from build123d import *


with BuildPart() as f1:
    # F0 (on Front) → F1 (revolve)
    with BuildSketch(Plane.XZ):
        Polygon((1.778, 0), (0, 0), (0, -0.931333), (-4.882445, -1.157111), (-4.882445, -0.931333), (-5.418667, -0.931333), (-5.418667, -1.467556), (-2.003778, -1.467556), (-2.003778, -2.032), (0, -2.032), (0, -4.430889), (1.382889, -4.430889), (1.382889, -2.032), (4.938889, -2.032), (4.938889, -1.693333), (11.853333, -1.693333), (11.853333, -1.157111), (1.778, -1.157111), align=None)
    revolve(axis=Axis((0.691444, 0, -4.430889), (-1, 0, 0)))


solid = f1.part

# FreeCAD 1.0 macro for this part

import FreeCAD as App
import Part
import Sketcher
from FreeCAD import Vector
Q = App.Units.Quantity

doc = App.newDocument("Part")
body = doc.addObject("PartDesign::Body", "Body")

# Sketch on XZ plane
sketch1 = body.newObject("Sketcher::SketchObject", "Sketch")
sketch1.AttachmentSupport = (doc.getObject("XZ_Plane"), [""])
sketch1.MapMode = "FlatFace"
sketch1.addGeometry(Part.LineSegment(Vector(1.78, 0, 0), Vector(0, 0, 0)), False)
sketch1.addGeometry(Part.LineSegment(Vector(0, 0, 0), Vector(0, -0.93, 0)), False)
sketch1.addGeometry(Part.LineSegment(Vector(0, -0.93, 0), Vector(-4.88, -1.16, 0)), False)
sketch1.addGeometry(Part.LineSegment(Vector(-4.88, -1.16, 0), Vector(-4.88, -0.93, 0)), False)
sketch1.addGeometry(Part.LineSegment(Vector(-4.88, -0.93, 0), Vector(-5.42, -0.93, 0)), False)
sketch1.addGeometry(Part.LineSegment(Vector(-5.42, -0.93, 0), Vector(-5.42, -1.47, 0)), False)
sketch1.addGeometry(Part.LineSegment(Vector(-5.42, -1.47, 0), Vector(-2, -1.47, 0)), False)
sketch1.addGeometry(Part.LineSegment(Vector(-2, -1.47, 0), Vector(-2, -2.03, 0)), False)
sketch1.addGeometry(Part.LineSegment(Vector(-2, -2.03, 0), Vector(0, -2.03, 0)), False)
sketch1.addGeometry(Part.LineSegment(Vector(0, -2.03, 0), Vector(0, -4.43, 0)), False)
sketch1.addGeometry(Part.LineSegment(Vector(0, -4.43, 0), Vector(1.38, -4.43, 0)), False)
sketch1.addGeometry(Part.LineSegment(Vector(1.38, -4.43, 0), Vector(1.38, -2.03, 0)), False)
sketch1.addGeometry(Part.LineSegment(Vector(1.38, -2.03, 0), Vector(4.94, -2.03, 0)), False)
sketch1.addGeometry(Part.LineSegment(Vector(4.94, -2.03, 0), Vector(4.94, -1.69, 0)), False)
sketch1.addGeometry(Part.LineSegment(Vector(4.94, -1.69, 0), Vector(11.85, -1.69, 0)), False)
sketch1.addGeometry(Part.LineSegment(Vector(11.85, -1.69, 0), Vector(11.85, -1.16, 0)), False)
sketch1.addGeometry(Part.LineSegment(Vector(11.85, -1.16, 0), Vector(1.78, -1.16, 0)), False)
sketch1.addGeometry(Part.LineSegment(Vector(1.78, -1.16, 0), Vector(1.78, 0, 0)), False)
sketch1.addGeometry(Part.LineSegment(Vector(11.85, -4.43, 0), Vector(-5.42, -4.43, 0)), True)  # axis
sketch1.addConstraint(Sketcher.Constraint("Coincident", 0, 2, 1, 1))
sketch1.addConstraint(Sketcher.Constraint("Coincident", 1, 2, 2, 1))
sketch1.addConstraint(Sketcher.Constraint("Coincident", 2, 2, 3, 1))
sketch1.addConstraint(Sketcher.Constraint("Coincident", 3, 2, 4, 1))
sketch1.addConstraint(Sketcher.Constraint("Coincident", 4, 2, 5, 1))
sketch1.addConstraint(Sketcher.Constraint("Coincident", 5, 2, 6, 1))
sketch1.addConstraint(Sketcher.Constraint("Coincident", 6, 2, 7, 1))
sketch1.addConstraint(Sketcher.Constraint("Coincident", 7, 2, 8, 1))
sketch1.addConstraint(Sketcher.Constraint("Coincident", 8, 2, 9, 1))
sketch1.addConstraint(Sketcher.Constraint("Coincident", 9, 2, 10, 1))
sketch1.addConstraint(Sketcher.Constraint("Coincident", 10, 2, 11, 1))
sketch1.addConstraint(Sketcher.Constraint("Coincident", 11, 2, 12, 1))
sketch1.addConstraint(Sketcher.Constraint("Coincident", 12, 2, 13, 1))
sketch1.addConstraint(Sketcher.Constraint("Coincident", 13, 2, 14, 1))
sketch1.addConstraint(Sketcher.Constraint("Coincident", 14, 2, 15, 1))
sketch1.addConstraint(Sketcher.Constraint("Coincident", 15, 2, 16, 1))
sketch1.addConstraint(Sketcher.Constraint("Coincident", 16, 2, 17, 1))
sketch1.addConstraint(Sketcher.Constraint("Coincident", 17, 2, 0, 1))
sketch1.addConstraint(Sketcher.Constraint("Horizontal", 0))
sketch1.addConstraint(Sketcher.Constraint("Vertical", 1))
sketch1.addConstraint(Sketcher.Constraint("Vertical", 3))
sketch1.addConstraint(Sketcher.Constraint("Horizontal", 4))
sketch1.addConstraint(Sketcher.Constraint("Vertical", 5))
sketch1.addConstraint(Sketcher.Constraint("Horizontal", 6))
sketch1.addConstraint(Sketcher.Constraint("Vertical", 7))
sketch1.addConstraint(Sketcher.Constraint("Horizontal", 8))
sketch1.addConstraint(Sketcher.Constraint("Vertical", 9))
sketch1.addConstraint(Sketcher.Constraint("Horizontal", 10))
sketch1.addConstraint(Sketcher.Constraint("Vertical", 11))
sketch1.addConstraint(Sketcher.Constraint("Horizontal", 12))
sketch1.addConstraint(Sketcher.Constraint("Vertical", 13))
sketch1.addConstraint(Sketcher.Constraint("Horizontal", 14))
sketch1.addConstraint(Sketcher.Constraint("Vertical", 15))
sketch1.addConstraint(Sketcher.Constraint("Horizontal", 16))
sketch1.addConstraint(Sketcher.Constraint("Vertical", 17))
sketch1.addConstraint(Sketcher.Constraint("Horizontal", 18))
sketch1.addConstraint(Sketcher.Constraint("Coincident", 0, 2, -1, 1))
sketch1.addConstraint(Sketcher.Constraint("PointOnObject", 8, 2, -2))
sketch1.addConstraint(Sketcher.Constraint("Horizontal", 1, 2, 3, 2))
sketch1.addConstraint(Sketcher.Constraint("Horizontal", 8, 2, 11, 2))
sketch1.addConstraint(Sketcher.Constraint("Horizontal", 2, 2, 15, 2))
sketch1.addConstraint(Sketcher.Constraint("Horizontal", 10, 2, 18, 1))
sketch1.addConstraint(Sketcher.Constraint("Vertical", 15, 2, 18, 1))
sketch1.addConstraint(Sketcher.Constraint("Vertical", 5, 2, 18, 2))
sketch1.addConstraint(Sketcher.Constraint("Equal", 4, 5))
sketch1.addConstraint(Sketcher.Constraint("Equal", 5, 15))
sketch1.addConstraint(Sketcher.Constraint("DistanceX", 0, 2, 0, 1, Q("0.07 in")))
sketch1.addConstraint(Sketcher.Constraint("DistanceX", 12, 1, 12, 2, Q("0.14 in")))
sketch1.addConstraint(Sketcher.Constraint("DistanceX", 18, 2, 18, 1, Q("0.68 in")))
sketch1.addConstraint(Sketcher.Constraint("DistanceY", 7, 2, -1, 1, Q("0.08 in")))
sketch1.addConstraint(Sketcher.Constraint("DistanceY", 13, 2, 1, 2, Q("0.03 in")))
sketch1.addConstraint(Sketcher.Constraint("DistanceX", 6, 1, 6, 2, 3.414889))
sketch1.addConstraint(Sketcher.Constraint("DistanceX", 8, 1, 8, 2, 2.003778))
sketch1.addConstraint(Sketcher.Constraint("DistanceX", 10, 1, 10, 2, 1.382889))
sketch1.addConstraint(Sketcher.Constraint("DistanceY", 3, 1, 3, 2, 0.225778))
sketch1.addConstraint(Sketcher.Constraint("DistanceY", 9, 2, 9, 1, 2.398889))
sketch1.addConstraint(Sketcher.Constraint("DistanceY", 17, 1, 17, 2, 1.157111))
revolution = body.newObject("PartDesign::Revolution", "Revolution")
revolution.Profile = sketch1
revolution.ReferenceAxis = (sketch1, ["Axis0"])
revolution.Angle = 360

doc.recompute()
